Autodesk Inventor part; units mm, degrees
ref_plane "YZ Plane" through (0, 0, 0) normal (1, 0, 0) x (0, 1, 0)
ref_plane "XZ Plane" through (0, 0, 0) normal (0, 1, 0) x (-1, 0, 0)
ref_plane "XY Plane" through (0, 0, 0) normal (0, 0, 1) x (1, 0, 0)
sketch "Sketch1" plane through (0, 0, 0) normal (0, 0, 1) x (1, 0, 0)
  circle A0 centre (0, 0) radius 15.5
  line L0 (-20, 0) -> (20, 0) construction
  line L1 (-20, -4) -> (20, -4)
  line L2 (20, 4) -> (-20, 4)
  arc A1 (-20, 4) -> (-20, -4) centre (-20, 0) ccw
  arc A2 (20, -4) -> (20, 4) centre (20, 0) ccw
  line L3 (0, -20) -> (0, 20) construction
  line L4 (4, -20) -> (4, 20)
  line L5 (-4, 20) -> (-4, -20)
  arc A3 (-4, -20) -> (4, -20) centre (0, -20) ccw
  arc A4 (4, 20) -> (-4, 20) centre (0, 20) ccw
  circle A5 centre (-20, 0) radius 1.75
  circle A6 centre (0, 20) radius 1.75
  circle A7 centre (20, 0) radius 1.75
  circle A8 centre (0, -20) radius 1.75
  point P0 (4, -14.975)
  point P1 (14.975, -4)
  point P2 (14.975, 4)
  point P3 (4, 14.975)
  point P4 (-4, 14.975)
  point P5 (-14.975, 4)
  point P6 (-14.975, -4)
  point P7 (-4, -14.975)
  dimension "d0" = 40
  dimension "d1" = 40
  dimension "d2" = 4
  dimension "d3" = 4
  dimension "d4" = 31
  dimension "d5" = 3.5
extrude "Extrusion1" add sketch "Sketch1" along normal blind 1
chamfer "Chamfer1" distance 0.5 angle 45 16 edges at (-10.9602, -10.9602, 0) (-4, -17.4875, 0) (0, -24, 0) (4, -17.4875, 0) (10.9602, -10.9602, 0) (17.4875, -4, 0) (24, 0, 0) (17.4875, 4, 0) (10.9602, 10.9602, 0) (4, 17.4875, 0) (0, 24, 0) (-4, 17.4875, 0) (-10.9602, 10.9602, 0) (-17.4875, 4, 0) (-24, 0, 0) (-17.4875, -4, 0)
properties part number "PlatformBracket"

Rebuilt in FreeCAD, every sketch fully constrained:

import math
import FreeCAD as App
import Part
import Sketcher
Q = App.Units.Quantity


def edges_at(feature, points):
    """Names of the edges that pass closest to the given points."""
    edges = feature.Shape.Edges
    near = lambda p: min(range(len(edges)), key=lambda i: edges[i].distToShape(Part.Vertex(*p))[0])
    return sorted({f"Edge{near(p) + 1}" for p in points})

doc = App.newDocument("Part")
body = doc.addObject("PartDesign::Body", "Body")

# Sketch on XY plane
sketch1 = body.newObject("Sketcher::SketchObject", "Sketch")
sketch1.AttachmentSupport = (doc.getObject("XY_Plane"), [""])
sketch1.MapMode = "FlatFace"
sketch1.addGeometry([
    Part.LineSegment(App.Vector(20, 4, 0), App.Vector(15, 4, 0)),  # 0
    Part.ArcOfCircle(Part.Circle(App.Vector(0, 0, 0), App.Vector(0, 0, 1), 15.5), math.radians(15), math.radians(75)),  # 1
    Part.LineSegment(App.Vector(4, 15, 0), App.Vector(4, 20, 0)),  # 2
    Part.ArcOfCircle(Part.Circle(App.Vector(0, 20, 0), App.Vector(0, 0, 1), 4), math.radians(0), math.radians(180)),  # 3
    Part.LineSegment(App.Vector(-4, 20, 0), App.Vector(-4, 15, 0)),  # 4
    Part.ArcOfCircle(Part.Circle(App.Vector(0, 0, 0), App.Vector(0, 0, 1), 15.5), math.radians(105), math.radians(165)),  # 5
    Part.LineSegment(App.Vector(-15, 4, 0), App.Vector(-20, 4, 0)),  # 6
    Part.ArcOfCircle(Part.Circle(App.Vector(-20, 0, 0), App.Vector(0, 0, 1), 4), math.radians(90), math.radians(270)),  # 7
    Part.LineSegment(App.Vector(-20, -4, 0), App.Vector(-15, -4, 0)),  # 8
    Part.ArcOfCircle(Part.Circle(App.Vector(0, 0, 0), App.Vector(0, 0, 1), 15.5), math.radians(-165), math.radians(-105)),  # 9
    Part.LineSegment(App.Vector(-4, -15, 0), App.Vector(-4, -20, 0)),  # 10
    Part.ArcOfCircle(Part.Circle(App.Vector(0, -20, 0), App.Vector(0, 0, 1), 4), math.radians(180), math.radians(360)),  # 11
    Part.LineSegment(App.Vector(4, -20, 0), App.Vector(4, -15, 0)),  # 12
    Part.ArcOfCircle(Part.Circle(App.Vector(0, 0, 0), App.Vector(0, 0, 1), 15.5), math.radians(-75), math.radians(-15)),  # 13
    Part.LineSegment(App.Vector(15, -4, 0), App.Vector(20, -4, 0)),  # 14
    Part.ArcOfCircle(Part.Circle(App.Vector(20, 0, 0), App.Vector(0, 0, 1), 4), math.radians(-90), math.radians(90)),  # 15
    Part.Circle(App.Vector(20, 0, 0), App.Vector(0, 0, 1), 1.8),  # 16
    Part.Circle(App.Vector(0, -20, 0), App.Vector(0, 0, 1), 1.8),  # 17
    Part.Circle(App.Vector(0, 20, 0), App.Vector(0, 0, 1), 1.8),  # 18
    Part.Circle(App.Vector(-20, 0, 0), App.Vector(0, 0, 1), 1.8),  # 19
], False)
sketch1.addConstraint([
    Sketcher.Constraint("Coincident", 0, 2, 1, 1),
    Sketcher.Constraint("Coincident", 1, 2, 2, 1),
    Sketcher.Constraint("Tangent", 2, 2, 3, 1),
    Sketcher.Constraint("Tangent", 3, 2, 4, 1),
    Sketcher.Constraint("Coincident", 4, 2, 5, 1),
    Sketcher.Constraint("Coincident", 5, 2, 6, 1),
    Sketcher.Constraint("Tangent", 6, 2, 7, 1),
    Sketcher.Constraint("Tangent", 7, 2, 8, 1),
    Sketcher.Constraint("Coincident", 8, 2, 9, 1),
    Sketcher.Constraint("Coincident", 9, 2, 10, 1),
    Sketcher.Constraint("Tangent", 10, 2, 11, 1),
    Sketcher.Constraint("Tangent", 11, 2, 12, 1),
    Sketcher.Constraint("Coincident", 12, 2, 13, 1),
    Sketcher.Constraint("Coincident", 13, 2, 14, 1),
    Sketcher.Constraint("Tangent", 14, 2, 15, 1),
    Sketcher.Constraint("Tangent", 15, 2, 0, 1),
    Sketcher.Constraint("Horizontal", 0),
    Sketcher.Constraint("Vertical", 2),
    Sketcher.Constraint("Vertical", 4),
    Sketcher.Constraint("Horizontal", 6),
    Sketcher.Constraint("Horizontal", 8),
    Sketcher.Constraint("Vertical", 10),
    Sketcher.Constraint("Vertical", 12),
    Sketcher.Constraint("Horizontal", 14),
    Sketcher.Constraint("Coincident", 1, 3, -1, 1),
    Sketcher.Constraint("Coincident", 5, 3, -1, 1),
    Sketcher.Constraint("Coincident", 9, 3, -1, 1),
    Sketcher.Constraint("Coincident", 13, 3, -1, 1),
    Sketcher.Constraint("Coincident", 16, 3, 15, 3),
    Sketcher.Constraint("Coincident", 17, 3, 11, 3),
    Sketcher.Constraint("Coincident", 18, 3, 3, 3),
    Sketcher.Constraint("Coincident", 19, 3, 7, 3),
    Sketcher.Constraint("Equal", 1, 5),
    Sketcher.Constraint("Equal", 3, 7),
    Sketcher.Constraint("Equal", 5, 9),
    Sketcher.Constraint("Equal", 7, 11),
    Sketcher.Constraint("Equal", 9, 13),
    Sketcher.Constraint("Equal", 11, 15),
    Sketcher.Constraint("Equal", 16, 17),
    Sketcher.Constraint("Equal", 17, 18),
    Sketcher.Constraint("Equal", 18, 19),
    Sketcher.Constraint("Symmetric", 3, 3, 11, 3, -1, 1),
    Sketcher.Constraint("Symmetric", 7, 3, 15, 3, -1, 1),
    Sketcher.Constraint("PointOnObject", 3, 3, -2),
    Sketcher.Constraint("PointOnObject", 7, 3, -1),
    Sketcher.Constraint("Equal", 14, 2),
    Sketcher.Constraint("Radius", 3, Q("4 mm")),
    Sketcher.Constraint("Diameter", 16, Q("3.5 mm")),
    Sketcher.Constraint("Radius", 1, Q("15.5 mm")),
    Sketcher.Constraint("DistanceY", 11, 3, 3, 3, Q("40 mm")),
])
pad1 = body.newObject("PartDesign::Pad", "Pad")
pad1.Profile = sketch1
pad1.Length = 1
doc.recompute()

chamfer = body.newObject("PartDesign::Chamfer", "Chamfer")
chamfer.Base = (pad1, edges_at(pad1, [
    (-10.96, -10.96, 0),
    (-4, -17.488, 0),
    (0, -24, 0),
    (4, -17.488, 0),
    (10.96, -10.96, 0),
    (17.488, -4, 0),
    (24, 0, 0),
    (17.488, 4, 0),
    (10.96, 10.96, 0),
    (4, 17.488, 0),
    (0, 24, 0),
    (-4, 17.488, 0),
    (-10.96, 10.96, 0),
    (-17.488, 4, 0),
    (-24, 0, 0),
    (-17.488, -4, 0),
]))
chamfer.Size = 0.5

doc.recompute()
